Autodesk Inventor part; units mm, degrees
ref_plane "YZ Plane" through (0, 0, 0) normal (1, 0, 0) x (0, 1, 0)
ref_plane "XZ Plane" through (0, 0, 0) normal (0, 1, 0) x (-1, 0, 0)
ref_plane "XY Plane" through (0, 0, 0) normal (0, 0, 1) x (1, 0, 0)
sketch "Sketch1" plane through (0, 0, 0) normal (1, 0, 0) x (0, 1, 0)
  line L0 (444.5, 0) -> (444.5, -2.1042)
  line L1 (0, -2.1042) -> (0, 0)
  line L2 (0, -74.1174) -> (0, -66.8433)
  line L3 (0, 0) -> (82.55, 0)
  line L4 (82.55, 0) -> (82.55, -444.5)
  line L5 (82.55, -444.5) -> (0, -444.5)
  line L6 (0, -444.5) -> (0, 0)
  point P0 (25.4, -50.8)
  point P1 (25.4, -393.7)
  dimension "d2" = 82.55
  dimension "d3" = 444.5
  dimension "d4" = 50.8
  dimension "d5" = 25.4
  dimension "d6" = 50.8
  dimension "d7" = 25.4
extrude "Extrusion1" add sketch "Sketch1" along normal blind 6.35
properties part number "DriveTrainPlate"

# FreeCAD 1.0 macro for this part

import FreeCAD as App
import Part
import Sketcher
Q = App.Units.Quantity


def add_polygon(sketch, points):
    """Adds a closed chain of lines whose ends are joined by coincident constraints."""
    first, n = sketch.GeometryCount, len(points)
    for a, b in zip(points, points[1:] + points[:1]):
        sketch.addGeometry(Part.LineSegment(App.Vector(*a, 0), App.Vector(*b, 0)), False)
    for i in range(n):
        sketch.addConstraint(Sketcher.Constraint("Coincident", first + i, 2, first + (i + 1) % n, 1))

doc = App.newDocument("Part")
params = doc.addObject("Spreadsheet::Sheet", "Params")
for row, (alias, value) in enumerate([
    ("sketch1_height", "17.5 in"),
    ("sketch1_width", "3.25 in"),
    ("pad1_length", "0.25 in"),
], start=1):
    params.set(f"A{row}", alias)
    params.set(f"B{row}", "=" + value)
    params.setAlias(f"B{row}", alias)

body = doc.addObject("PartDesign::Body", "Body")

sketch1 = body.newObject("Sketcher::SketchObject", "Sketch")
sketch1.AttachmentSupport = (doc.getObject("YZ_Plane"), [""])
sketch1.MapMode = "FlatFace"
add_polygon(sketch1, [(0, 0), (0, -444), (83, -444), (83, 0)])
sketch1.addConstraint([
    Sketcher.Constraint("Vertical", 0),
    Sketcher.Constraint("Horizontal", 1),
    Sketcher.Constraint("Vertical", 2),
    Sketcher.Constraint("Horizontal", 3),
    Sketcher.Constraint("Coincident", 3, 2, -1, 1),
    Sketcher.Constraint("DistanceY", 0, 2, 0, 1, Q("17.5 in")),
    Sketcher.Constraint("DistanceX", 1, 1, 1, 2, Q("3.25 in")),
])
sketch1.setExpression("Constraints[9]", "Params.sketch1_height")
sketch1.setExpression("Constraints[10]", "Params.sketch1_width")
pad1 = body.newObject("PartDesign::Pad", "Pad")
pad1.Profile = sketch1
pad1.setExpression("Length", "Params.pad1_length")

doc.recompute()
